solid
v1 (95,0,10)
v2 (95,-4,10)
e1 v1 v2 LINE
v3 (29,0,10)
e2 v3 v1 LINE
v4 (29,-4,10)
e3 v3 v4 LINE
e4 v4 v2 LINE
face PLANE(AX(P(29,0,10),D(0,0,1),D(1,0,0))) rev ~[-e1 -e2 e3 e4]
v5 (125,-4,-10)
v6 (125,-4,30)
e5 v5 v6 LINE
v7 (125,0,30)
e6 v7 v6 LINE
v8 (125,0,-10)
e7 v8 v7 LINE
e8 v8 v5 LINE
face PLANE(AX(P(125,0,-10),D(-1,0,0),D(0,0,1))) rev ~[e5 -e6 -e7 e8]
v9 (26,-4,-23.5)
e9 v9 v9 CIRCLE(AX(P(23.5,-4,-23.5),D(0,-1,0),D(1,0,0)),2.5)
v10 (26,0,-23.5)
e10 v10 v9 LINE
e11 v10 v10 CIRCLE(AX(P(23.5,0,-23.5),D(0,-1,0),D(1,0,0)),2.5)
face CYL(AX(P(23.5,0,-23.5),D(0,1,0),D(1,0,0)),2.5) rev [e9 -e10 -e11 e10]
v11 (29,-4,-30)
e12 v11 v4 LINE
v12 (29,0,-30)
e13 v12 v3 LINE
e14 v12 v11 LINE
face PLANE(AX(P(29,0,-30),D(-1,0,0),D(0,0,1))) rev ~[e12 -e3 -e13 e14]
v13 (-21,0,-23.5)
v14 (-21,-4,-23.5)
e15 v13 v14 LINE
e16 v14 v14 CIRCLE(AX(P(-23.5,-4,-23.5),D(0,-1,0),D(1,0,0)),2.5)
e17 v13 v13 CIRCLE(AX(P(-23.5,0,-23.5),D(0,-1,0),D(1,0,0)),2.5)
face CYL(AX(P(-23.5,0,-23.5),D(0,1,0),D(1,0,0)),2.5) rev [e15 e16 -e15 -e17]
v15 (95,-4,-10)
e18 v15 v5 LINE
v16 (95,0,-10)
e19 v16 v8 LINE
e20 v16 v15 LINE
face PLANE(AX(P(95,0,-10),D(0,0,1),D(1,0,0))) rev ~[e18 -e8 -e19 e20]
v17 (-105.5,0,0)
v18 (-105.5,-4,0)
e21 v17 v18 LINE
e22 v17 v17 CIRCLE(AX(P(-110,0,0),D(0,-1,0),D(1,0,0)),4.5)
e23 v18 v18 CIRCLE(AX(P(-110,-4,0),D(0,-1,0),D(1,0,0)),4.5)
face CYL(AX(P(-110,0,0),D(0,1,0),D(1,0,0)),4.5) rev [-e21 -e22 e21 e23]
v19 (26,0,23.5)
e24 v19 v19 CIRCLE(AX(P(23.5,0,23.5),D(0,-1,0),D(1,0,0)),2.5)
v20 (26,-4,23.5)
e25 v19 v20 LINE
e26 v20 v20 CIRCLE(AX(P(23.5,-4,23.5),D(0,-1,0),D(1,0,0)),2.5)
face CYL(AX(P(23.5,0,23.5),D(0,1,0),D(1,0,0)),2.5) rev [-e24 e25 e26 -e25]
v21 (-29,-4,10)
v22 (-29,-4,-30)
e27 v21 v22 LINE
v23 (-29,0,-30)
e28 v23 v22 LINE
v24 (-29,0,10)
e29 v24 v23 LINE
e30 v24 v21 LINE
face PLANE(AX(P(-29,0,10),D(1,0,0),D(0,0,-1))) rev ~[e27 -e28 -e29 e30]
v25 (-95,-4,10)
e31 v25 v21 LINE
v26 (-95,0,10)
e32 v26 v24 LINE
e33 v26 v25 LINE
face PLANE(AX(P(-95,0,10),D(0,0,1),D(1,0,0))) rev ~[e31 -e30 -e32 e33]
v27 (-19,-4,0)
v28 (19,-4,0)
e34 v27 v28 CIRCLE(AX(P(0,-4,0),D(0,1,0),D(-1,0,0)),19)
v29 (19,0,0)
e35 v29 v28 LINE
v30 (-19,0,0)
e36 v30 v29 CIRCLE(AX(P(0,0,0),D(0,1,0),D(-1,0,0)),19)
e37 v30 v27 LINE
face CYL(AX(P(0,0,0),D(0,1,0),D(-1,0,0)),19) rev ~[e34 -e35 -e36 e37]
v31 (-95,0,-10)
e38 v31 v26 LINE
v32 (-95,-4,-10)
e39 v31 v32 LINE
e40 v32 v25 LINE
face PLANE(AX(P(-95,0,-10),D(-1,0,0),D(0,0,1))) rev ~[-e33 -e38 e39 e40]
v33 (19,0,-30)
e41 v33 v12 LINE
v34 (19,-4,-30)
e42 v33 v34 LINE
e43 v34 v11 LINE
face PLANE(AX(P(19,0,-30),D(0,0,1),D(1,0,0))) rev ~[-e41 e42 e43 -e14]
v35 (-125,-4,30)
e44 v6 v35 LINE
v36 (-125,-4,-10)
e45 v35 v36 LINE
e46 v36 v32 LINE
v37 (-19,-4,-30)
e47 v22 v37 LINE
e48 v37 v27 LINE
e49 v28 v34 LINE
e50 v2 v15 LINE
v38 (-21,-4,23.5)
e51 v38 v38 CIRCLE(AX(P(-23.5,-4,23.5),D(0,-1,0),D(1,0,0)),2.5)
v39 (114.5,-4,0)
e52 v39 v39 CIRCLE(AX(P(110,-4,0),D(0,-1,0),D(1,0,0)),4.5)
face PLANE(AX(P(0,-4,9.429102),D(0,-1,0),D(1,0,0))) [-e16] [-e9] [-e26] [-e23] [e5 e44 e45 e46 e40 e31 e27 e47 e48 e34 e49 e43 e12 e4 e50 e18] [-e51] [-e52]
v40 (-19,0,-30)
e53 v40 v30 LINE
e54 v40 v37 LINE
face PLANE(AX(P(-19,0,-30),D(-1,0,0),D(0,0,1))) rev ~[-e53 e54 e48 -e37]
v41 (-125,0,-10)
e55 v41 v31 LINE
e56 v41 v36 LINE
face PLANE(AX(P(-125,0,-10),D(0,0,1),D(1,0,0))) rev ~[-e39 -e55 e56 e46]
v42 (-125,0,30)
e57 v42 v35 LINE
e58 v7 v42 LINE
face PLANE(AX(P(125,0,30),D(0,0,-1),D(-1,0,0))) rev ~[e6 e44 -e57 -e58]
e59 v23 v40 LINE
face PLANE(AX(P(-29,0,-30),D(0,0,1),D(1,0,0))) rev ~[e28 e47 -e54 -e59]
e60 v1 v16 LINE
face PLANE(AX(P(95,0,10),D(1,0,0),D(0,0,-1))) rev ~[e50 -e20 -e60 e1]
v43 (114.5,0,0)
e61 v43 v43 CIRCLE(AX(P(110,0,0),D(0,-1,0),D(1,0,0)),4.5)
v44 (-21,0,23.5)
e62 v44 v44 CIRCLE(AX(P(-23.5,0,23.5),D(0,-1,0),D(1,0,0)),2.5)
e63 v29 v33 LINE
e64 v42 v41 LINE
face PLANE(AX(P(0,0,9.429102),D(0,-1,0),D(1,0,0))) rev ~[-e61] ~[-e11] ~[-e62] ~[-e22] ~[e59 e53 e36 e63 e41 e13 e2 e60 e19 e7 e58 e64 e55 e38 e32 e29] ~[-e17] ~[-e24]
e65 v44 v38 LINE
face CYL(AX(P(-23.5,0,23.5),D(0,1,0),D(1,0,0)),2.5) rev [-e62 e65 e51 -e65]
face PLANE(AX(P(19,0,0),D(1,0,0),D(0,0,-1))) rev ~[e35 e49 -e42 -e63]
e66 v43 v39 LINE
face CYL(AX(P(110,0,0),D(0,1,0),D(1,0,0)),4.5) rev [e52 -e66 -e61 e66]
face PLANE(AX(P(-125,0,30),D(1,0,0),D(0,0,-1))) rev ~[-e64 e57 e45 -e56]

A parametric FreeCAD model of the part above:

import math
import FreeCAD as App
import Part
import Sketcher

V = App.Vector
Q = App.Units.Quantity

doc = App.newDocument("Part")
params = doc.addObject("Spreadsheet::Sheet", "Params")
for row, (alias, value) in enumerate([
    ("sketch1_diameter", "5 mm"),
    ("sketch1_diameter2", "9 mm"),
    ("sketch1_radius", "19 mm"),
    ("sketch1_width", "10 mm"),
    ("sketch1_width2", "66 mm"),
    ("pad1_length", "4 mm"),
], start=1):
    params.set(f"A{row}", alias)
    params.set(f"B{row}", "=" + value)
    params.setAlias(f"B{row}", alias)

body = doc.addObject("PartDesign::Body", "Body")

# Sketch on XZ plane
sketch1 = body.newObject("Sketcher::SketchObject", "Sketch")
sketch1.AttachmentSupport = (doc.getObject("XZ_Plane"), [""])
sketch1.MapMode = "FlatFace"
sketch1.addGeometry(Part.ArcOfCircle(Part.Circle(V(0, 0, 0), V(0, 0, 1), 19), math.radians(0), math.radians(180)), False)
sketch1.addGeometry(Part.LineSegment(V(19, 0, 0), V(19, -30, 0)), False)
sketch1.addGeometry(Part.LineSegment(V(19, -30, 0), V(29, -30, 0)), False)
sketch1.addGeometry(Part.LineSegment(V(29, -30, 0), V(29, 10, 0)), False)
sketch1.addGeometry(Part.LineSegment(V(29, 10, 0), V(95, 10, 0)), False)
sketch1.addGeometry(Part.LineSegment(V(95, 10, 0), V(95, -10, 0)), False)
sketch1.addGeometry(Part.LineSegment(V(95, -10, 0), V(125, -10, 0)), False)
sketch1.addGeometry(Part.LineSegment(V(125, -10, 0), V(125, 30, 0)), False)
sketch1.addGeometry(Part.LineSegment(V(125, 30, 0), V(-125, 30, 0)), False)
sketch1.addGeometry(Part.LineSegment(V(-125, 30, 0), V(-125, -10, 0)), False)
sketch1.addGeometry(Part.LineSegment(V(-125, -10, 0), V(-95, -10, 0)), False)
sketch1.addGeometry(Part.LineSegment(V(-95, -10, 0), V(-95, 10, 0)), False)
sketch1.addGeometry(Part.LineSegment(V(-95, 10, 0), V(-29, 10, 0)), False)
sketch1.addGeometry(Part.LineSegment(V(-29, 10, 0), V(-29, -30, 0)), False)
sketch1.addGeometry(Part.LineSegment(V(-29, -30, 0), V(-19, -30, 0)), False)
sketch1.addGeometry(Part.LineSegment(V(-19, -30, 0), V(-19, 0, 0)), False)
sketch1.addGeometry(Part.Circle(V(-23.5, -23.5, 0), V(0, 0, 1), 2.5), False)
sketch1.addGeometry(Part.Circle(V(-110, 0, 0), V(0, 0, 1), 4.5), False)
sketch1.addGeometry(Part.Circle(V(23.5, -23.5, 0), V(0, 0, 1), 2.5), False)
sketch1.addGeometry(Part.Circle(V(110, 0, 0), V(0, 0, 1), 4.5), False)
sketch1.addGeometry(Part.Circle(V(-23.5, 23.5, 0), V(0, 0, 1), 2.5), False)
sketch1.addGeometry(Part.Circle(V(23.5, 23.5, 0), V(0, 0, 1), 2.5), False)
sketch1.addConstraint(Sketcher.Constraint("Tangent", 0, 1, 1, 1))
sketch1.addConstraint(Sketcher.Constraint("Coincident", 1, 2, 2, 1))
sketch1.addConstraint(Sketcher.Constraint("Coincident", 2, 2, 3, 1))
sketch1.addConstraint(Sketcher.Constraint("Coincident", 3, 2, 4, 1))
sketch1.addConstraint(Sketcher.Constraint("Coincident", 4, 2, 5, 1))
sketch1.addConstraint(Sketcher.Constraint("Coincident", 5, 2, 6, 1))
sketch1.addConstraint(Sketcher.Constraint("Coincident", 6, 2, 7, 1))
sketch1.addConstraint(Sketcher.Constraint("Coincident", 7, 2, 8, 1))
sketch1.addConstraint(Sketcher.Constraint("Coincident", 8, 2, 9, 1))
sketch1.addConstraint(Sketcher.Constraint("Coincident", 9, 2, 10, 1))
sketch1.addConstraint(Sketcher.Constraint("Coincident", 10, 2, 11, 1))
sketch1.addConstraint(Sketcher.Constraint("Coincident", 11, 2, 12, 1))
sketch1.addConstraint(Sketcher.Constraint("Coincident", 12, 2, 13, 1))
sketch1.addConstraint(Sketcher.Constraint("Coincident", 13, 2, 14, 1))
sketch1.addConstraint(Sketcher.Constraint("Coincident", 14, 2, 15, 1))
sketch1.addConstraint(Sketcher.Constraint("Tangent", 15, 2, 0, 2))
sketch1.addConstraint(Sketcher.Constraint("Vertical", 1))
sketch1.addConstraint(Sketcher.Constraint("Horizontal", 2))
sketch1.addConstraint(Sketcher.Constraint("Vertical", 3))
sketch1.addConstraint(Sketcher.Constraint("Horizontal", 4))
sketch1.addConstraint(Sketcher.Constraint("Vertical", 5))
sketch1.addConstraint(Sketcher.Constraint("Horizontal", 6))
sketch1.addConstraint(Sketcher.Constraint("Vertical", 7))
sketch1.addConstraint(Sketcher.Constraint("Horizontal", 8))
sketch1.addConstraint(Sketcher.Constraint("Vertical", 9))
sketch1.addConstraint(Sketcher.Constraint("Horizontal", 10))
sketch1.addConstraint(Sketcher.Constraint("Vertical", 11))
sketch1.addConstraint(Sketcher.Constraint("Horizontal", 12))
sketch1.addConstraint(Sketcher.Constraint("Vertical", 13))
sketch1.addConstraint(Sketcher.Constraint("Horizontal", 14))
sketch1.addConstraint(Sketcher.Constraint("Vertical", 15))
sketch1.addConstraint(Sketcher.Constraint("Coincident", 0, 3, -1, 1))
sketch1.addConstraint(Sketcher.Constraint("Equal", 16, 18))
sketch1.addConstraint(Sketcher.Constraint("Equal", 17, 19))
sketch1.addConstraint(Sketcher.Constraint("Equal", 18, 20))
sketch1.addConstraint(Sketcher.Constraint("Equal", 20, 21))
sketch1.addConstraint(Sketcher.Constraint("Symmetric", 17, 3, 19, 3, -1, 1))
sketch1.addConstraint(Sketcher.Constraint("Symmetric", 18, 3, 20, 3, -1, 1))
sketch1.addConstraint(Sketcher.Constraint("Symmetric", 16, 3, 21, 3, -1, 1))
sketch1.addConstraint(Sketcher.Constraint("Symmetric", 4, 2, 10, 2, -1, 1))
sketch1.addConstraint(Sketcher.Constraint("Symmetric", 16, 3, 18, 3, -2))
sketch1.addConstraint(Sketcher.Constraint("Symmetric", 6, 2, 9, 2, -2))
sketch1.addConstraint(Sketcher.Constraint("Symmetric", 3, 2, 12, 2, -2))
sketch1.addConstraint(Sketcher.Constraint("PointOnObject", 17, 3, -1))
sketch1.addConstraint(Sketcher.Constraint("Horizontal", 2, 2, 13, 2))
sketch1.addConstraint(Sketcher.Constraint("Equal", 10, 1))
sketch1.addConstraint(Sketcher.Constraint("Equal", 3, 7))
sketch1.addConstraint(Sketcher.Constraint("Diameter", 16, Q("5 mm")))
sketch1.addConstraint(Sketcher.Constraint("Diameter", 17, Q("9 mm")))
sketch1.addConstraint(Sketcher.Constraint("Radius", 0, Q("19 mm")))
sketch1.addConstraint(Sketcher.Constraint("DistanceX", 2, 1, 2, 2, Q("10 mm")))
sketch1.addConstraint(Sketcher.Constraint("DistanceX", 4, 1, 4, 2, Q("66 mm")))
sketch1.addConstraint(Sketcher.Constraint("DistanceX", 6, 1, 6, 2, Q("30 mm")))
sketch1.addConstraint(Sketcher.Constraint("DistanceY", 3, 1, 3, 2, Q("40 mm")))
sketch1.addConstraint(Sketcher.Constraint("DistanceX", 17, 3, -1, 1, Q("110 mm")))
sketch1.addConstraint(Sketcher.Constraint("DistanceX", 16, 3, 18, 3, Q("47 mm")))
sketch1.addConstraint(Sketcher.Constraint("DistanceY", 16, 3, 20, 3, Q("47 mm")))
sketch1.setExpression("Constraints[47]", "Params.sketch1_diameter")
sketch1.setExpression("Constraints[48]", "Params.sketch1_diameter2")
sketch1.setExpression("Constraints[49]", "Params.sketch1_radius")
sketch1.setExpression("Constraints[50]", "Params.sketch1_width")
sketch1.setExpression("Constraints[51]", "Params.sketch1_width2")
pad1 = body.newObject("PartDesign::Pad", "Pad")
pad1.Profile = sketch1
pad1.setExpression("Length", "Params.pad1_length")

doc.recompute()
